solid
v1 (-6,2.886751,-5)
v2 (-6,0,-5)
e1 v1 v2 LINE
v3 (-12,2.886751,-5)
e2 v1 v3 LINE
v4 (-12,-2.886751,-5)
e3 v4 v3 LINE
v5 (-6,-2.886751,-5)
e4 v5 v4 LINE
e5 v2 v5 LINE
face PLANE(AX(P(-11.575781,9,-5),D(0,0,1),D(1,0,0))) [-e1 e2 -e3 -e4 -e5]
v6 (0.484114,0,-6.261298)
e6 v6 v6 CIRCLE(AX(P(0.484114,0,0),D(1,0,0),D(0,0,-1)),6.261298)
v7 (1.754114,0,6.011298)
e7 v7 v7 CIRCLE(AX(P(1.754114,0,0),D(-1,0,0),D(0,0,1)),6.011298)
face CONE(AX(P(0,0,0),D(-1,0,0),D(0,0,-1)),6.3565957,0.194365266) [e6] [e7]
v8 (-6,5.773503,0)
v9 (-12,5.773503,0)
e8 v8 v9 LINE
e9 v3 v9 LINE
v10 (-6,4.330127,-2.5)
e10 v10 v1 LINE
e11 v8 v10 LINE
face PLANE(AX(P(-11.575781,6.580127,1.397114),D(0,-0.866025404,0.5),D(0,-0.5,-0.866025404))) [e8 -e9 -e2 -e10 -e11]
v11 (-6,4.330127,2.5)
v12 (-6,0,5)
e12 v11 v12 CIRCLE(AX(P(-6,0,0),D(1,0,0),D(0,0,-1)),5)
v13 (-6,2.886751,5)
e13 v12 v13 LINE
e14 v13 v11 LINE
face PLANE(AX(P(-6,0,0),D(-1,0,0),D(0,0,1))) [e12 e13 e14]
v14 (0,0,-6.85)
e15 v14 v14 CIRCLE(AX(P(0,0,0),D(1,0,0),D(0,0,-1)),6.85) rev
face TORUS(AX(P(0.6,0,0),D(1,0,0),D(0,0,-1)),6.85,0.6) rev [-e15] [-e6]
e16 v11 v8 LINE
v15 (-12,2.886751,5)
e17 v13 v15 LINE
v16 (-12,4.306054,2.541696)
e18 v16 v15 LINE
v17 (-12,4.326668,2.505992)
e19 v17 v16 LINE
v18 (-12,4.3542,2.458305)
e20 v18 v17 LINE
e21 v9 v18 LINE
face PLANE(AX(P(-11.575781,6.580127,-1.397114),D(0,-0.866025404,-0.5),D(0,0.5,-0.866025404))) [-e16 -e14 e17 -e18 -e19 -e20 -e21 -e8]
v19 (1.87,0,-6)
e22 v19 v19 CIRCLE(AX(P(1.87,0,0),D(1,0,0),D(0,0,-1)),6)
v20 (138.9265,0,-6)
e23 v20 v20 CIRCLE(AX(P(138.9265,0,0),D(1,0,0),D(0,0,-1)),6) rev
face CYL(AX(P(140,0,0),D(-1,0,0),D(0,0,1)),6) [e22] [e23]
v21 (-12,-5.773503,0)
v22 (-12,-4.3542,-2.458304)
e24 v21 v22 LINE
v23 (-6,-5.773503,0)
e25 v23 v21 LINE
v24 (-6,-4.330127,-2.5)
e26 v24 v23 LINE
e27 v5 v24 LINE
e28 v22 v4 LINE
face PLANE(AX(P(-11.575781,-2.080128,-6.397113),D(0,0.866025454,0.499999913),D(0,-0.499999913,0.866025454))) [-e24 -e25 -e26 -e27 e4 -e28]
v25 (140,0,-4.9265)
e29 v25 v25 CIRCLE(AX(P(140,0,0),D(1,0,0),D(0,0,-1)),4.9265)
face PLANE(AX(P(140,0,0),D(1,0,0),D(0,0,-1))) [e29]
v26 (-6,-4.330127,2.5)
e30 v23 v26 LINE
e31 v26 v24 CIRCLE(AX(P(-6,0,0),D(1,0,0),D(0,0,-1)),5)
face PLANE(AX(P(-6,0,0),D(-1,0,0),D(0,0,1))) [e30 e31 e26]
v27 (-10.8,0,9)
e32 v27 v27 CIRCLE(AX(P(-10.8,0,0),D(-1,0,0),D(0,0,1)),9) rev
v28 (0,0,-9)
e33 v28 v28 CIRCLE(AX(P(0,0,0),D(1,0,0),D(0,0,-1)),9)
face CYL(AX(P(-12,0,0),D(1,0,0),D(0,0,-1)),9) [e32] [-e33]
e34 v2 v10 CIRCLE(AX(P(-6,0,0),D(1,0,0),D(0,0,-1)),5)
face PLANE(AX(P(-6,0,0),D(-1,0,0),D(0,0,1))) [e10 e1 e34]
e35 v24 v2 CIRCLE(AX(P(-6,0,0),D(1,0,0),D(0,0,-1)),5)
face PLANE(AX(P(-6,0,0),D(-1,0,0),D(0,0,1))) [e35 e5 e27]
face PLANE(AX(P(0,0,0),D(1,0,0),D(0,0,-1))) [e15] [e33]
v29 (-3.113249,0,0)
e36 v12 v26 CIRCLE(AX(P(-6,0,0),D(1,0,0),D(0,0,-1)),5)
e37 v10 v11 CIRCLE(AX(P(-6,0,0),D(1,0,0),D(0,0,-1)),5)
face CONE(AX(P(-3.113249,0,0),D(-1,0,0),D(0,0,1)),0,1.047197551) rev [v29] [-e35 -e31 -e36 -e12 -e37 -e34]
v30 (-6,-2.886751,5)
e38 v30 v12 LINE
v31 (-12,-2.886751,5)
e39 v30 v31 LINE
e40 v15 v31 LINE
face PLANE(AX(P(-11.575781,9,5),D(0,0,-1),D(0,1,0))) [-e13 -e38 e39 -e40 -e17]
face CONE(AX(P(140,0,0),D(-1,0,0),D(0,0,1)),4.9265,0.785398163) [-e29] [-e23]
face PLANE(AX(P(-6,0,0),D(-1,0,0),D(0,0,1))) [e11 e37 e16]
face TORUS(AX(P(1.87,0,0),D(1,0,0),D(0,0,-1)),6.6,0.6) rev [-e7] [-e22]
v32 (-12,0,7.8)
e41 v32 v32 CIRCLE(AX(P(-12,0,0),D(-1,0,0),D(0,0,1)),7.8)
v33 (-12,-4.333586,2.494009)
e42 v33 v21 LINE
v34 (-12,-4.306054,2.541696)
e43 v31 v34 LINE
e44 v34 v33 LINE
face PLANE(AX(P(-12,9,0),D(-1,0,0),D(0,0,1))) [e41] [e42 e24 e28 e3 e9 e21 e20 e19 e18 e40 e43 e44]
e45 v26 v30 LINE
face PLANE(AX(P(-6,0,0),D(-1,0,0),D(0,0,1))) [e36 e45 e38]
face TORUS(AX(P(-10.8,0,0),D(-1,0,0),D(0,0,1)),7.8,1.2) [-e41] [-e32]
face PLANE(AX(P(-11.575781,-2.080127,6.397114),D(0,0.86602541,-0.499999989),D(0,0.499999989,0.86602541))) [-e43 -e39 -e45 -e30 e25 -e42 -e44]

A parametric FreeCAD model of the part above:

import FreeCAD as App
import Part
import Sketcher

V = App.Vector
Q = App.Units.Quantity


def edges_at(feature, points):
    """Names of the edges that pass closest to the given points."""
    edges = feature.Shape.Edges
    near = lambda p: min(range(len(edges)), key=lambda i: edges[i].distToShape(Part.Vertex(*p))[0])
    return sorted({f"Edge{near(p) + 1}" for p in points})


def add_polygon(sketch, points):
    """Adds a closed chain of lines whose ends are joined by coincident constraints."""
    first, n = sketch.GeometryCount, len(points)
    for a, b in zip(points, points[1:] + points[:1]):
        sketch.addGeometry(Part.LineSegment(App.Vector(*a, 0), App.Vector(*b, 0)), False)
    for i in range(n):
        sketch.addConstraint(Sketcher.Constraint("Coincident", first + i, 2, first + (i + 1) % n, 1))

doc = App.newDocument("Part")
body = doc.addObject("PartDesign::Body", "Body")

# Sketch on XY plane
sketch1 = body.newObject("Sketcher::SketchObject", "Sketch")
sketch1.AttachmentSupport = (doc.getObject("XY_Plane"), [""])
sketch1.MapMode = "FlatFace"
add_polygon(sketch1, [(-12, 9), (-12, 0), (0, 0), (0, 9)])  # lines 0-3
sketch1.addConstraint([
    Sketcher.Constraint("Vertical", 0),
    Sketcher.Constraint("Horizontal", 1),
    Sketcher.Constraint("Vertical", 2),
    Sketcher.Constraint("Horizontal", 3),
    Sketcher.Constraint("Coincident", 1, 2, -1, 1),
    Sketcher.Constraint("DistanceX", 1, 1, 1, 2, Q("12 mm")),
    Sketcher.Constraint("DistanceY", 0, 2, 0, 1, Q("9 mm")),
])
revolution = body.newObject("PartDesign::Revolution", "Revolution")
revolution.Profile = sketch1
revolution.ReferenceAxis = (sketch1, ["H_Axis"])
revolution.Angle = 360

# Sketch on YZ plane
sketch2 = body.newObject("Sketcher::SketchObject", "Sketch001")
sketch2.AttachmentSupport = (doc.getObject("YZ_Plane"), [""])
sketch2.MapMode = "FlatFace"
sketch2.AttachmentOffset = App.Placement(V(0, 0, -12), App.Rotation())
add_polygon(sketch2, [(4.334, -2.494), (4.306, -2.542), (2.887, -5), (-2.887, -5), (-4.306, -2.542), (-4.327, -2.506), (-4.354, -2.458), (-5.774, 0), (-4.354, 2.458), (-4.334, 2.494), (-4.306, 2.542), (-2.887, 5), (2.887, 5), (4.306, 2.542), (4.327, 2.506), (4.354, 2.458), (5.774, 0), (4.354, -2.458)])  # lines 0-17
sketch2.addConstraint([
    Sketcher.Constraint("Horizontal", 2),
    Sketcher.Constraint("Horizontal", 11),
    Sketcher.Constraint("Symmetric", 0, 2, 9, 2, -1, 1),
    Sketcher.Constraint("Symmetric", 1, 2, 10, 2, -1, 1),
    Sketcher.Constraint("Symmetric", 3, 2, 12, 2, -1, 1),
    Sketcher.Constraint("Symmetric", 4, 2, 13, 2, -1, 1),
    Sketcher.Constraint("Symmetric", 5, 2, 14, 2, -1, 1),
    Sketcher.Constraint("Symmetric", 6, 2, 15, 2, -1, 1),
    Sketcher.Constraint("Symmetric", 7, 2, 16, 2, -1, 1),
    Sketcher.Constraint("Symmetric", 8, 2, 17, 2, -1, 1),
    Sketcher.Constraint("Symmetric", 0, 2, 3, 2, -2),
    Sketcher.Constraint("Symmetric", 7, 2, 14, 2, -2),
    Sketcher.Constraint("PointOnObject", 6, 2, -1),
    Sketcher.Constraint("Parallel", 0, 1),
    Sketcher.Constraint("Parallel", 3, 4),
    Sketcher.Constraint("Parallel", 4, 5),
    Sketcher.Constraint("Parallel", 5, 6),
    Sketcher.Constraint("Parallel", 1, 7),
    Sketcher.Constraint("Parallel", 6, 12),
    Sketcher.Constraint("Equal", 0, 5),
    Sketcher.Constraint("Equal", 3, 6),
    Sketcher.Constraint("Angle", 0, Q("-120.000001 deg")),
    Sketcher.Constraint("DistanceY", 1, 2, -1, 1, Q("5 mm")),
    Sketcher.Constraint("DistanceX", 5, 2, -1, 1, Q("4.3542 mm")),
    Sketcher.Constraint("DistanceX", 2, 2, 2, 1, Q("5.773503 mm")),
    Sketcher.Constraint("DistanceY", 4, 2, -1, 1, Q("2.505991 mm")),
])
pocket1 = body.newObject("PartDesign::Pocket", "Pocket")
pocket1.Profile = sketch2
pocket1.Length = 0.424219
pocket1.Reversed = True

# Sketch on YZ plane
sketch3 = body.newObject("Sketcher::SketchObject", "Sketch002")
sketch3.AttachmentSupport = (doc.getObject("YZ_Plane"), [""])
sketch3.MapMode = "FlatFace"
sketch3.AttachmentOffset = App.Placement(V(0, 0, -11.575781), App.Rotation())
add_polygon(sketch3, [(6, 0), (3, -5), (-3, -5), (-6, 0), (-3, 5), (3, 5)])  # lines 0-5
sketch3.addConstraint([
    Sketcher.Constraint("Horizontal", 1),
    Sketcher.Constraint("Horizontal", 4),
    Sketcher.Constraint("Symmetric", 0, 2, 3, 2, -1, 1),
    Sketcher.Constraint("Symmetric", 2, 2, 5, 2, -1, 1),
    Sketcher.Constraint("PointOnObject", 2, 2, -1),
    Sketcher.Constraint("Parallel", 2, 5),
    Sketcher.Constraint("Vertical", 1, 2, 3, 2),
    Sketcher.Constraint("Angle", 0, Q("-120 deg")),
    Sketcher.Constraint("DistanceY", 0, 2, -1, 1, Q("5 mm")),
    Sketcher.Constraint("DistanceX", 1, 2, 1, 1, Q("5.773503 mm")),
])
pocket2 = body.newObject("PartDesign::Pocket", "Pocket001")
pocket2.Profile = sketch3
pocket2.Length = 5.575781
pocket2.Reversed = True

# Sketch on YZ plane
sketch4 = body.newObject("Sketcher::SketchObject", "Sketch003")
sketch4.AttachmentSupport = (doc.getObject("YZ_Plane"), [""])
sketch4.MapMode = "FlatFace"
sketch4.addGeometry(Part.Circle(V(0, 0, 0), V(0, 0, 1), 6), False)
sketch4.addConstraint([
    Sketcher.Constraint("Coincident", 0, 3, -1, 1),
    Sketcher.Constraint("Diameter", 0, Q("12.713191 mm")),
])
pad1 = body.newObject("PartDesign::Pad", "Pad")
pad1.Profile = sketch4
pad1.Length = 1.811506
pad1.TaperAngle = -11.136309

# Sketch on YZ plane
sketch5 = body.newObject("Sketcher::SketchObject", "Sketch004")
sketch5.AttachmentSupport = (doc.getObject("YZ_Plane"), [""])
sketch5.MapMode = "FlatFace"
sketch5.AttachmentOffset = App.Placement(V(0, 0, 1.811506), App.Rotation())
sketch5.addGeometry(Part.Circle(V(0, 0, 0), V(0, 0, 1), 6), False)
sketch5.addConstraint([
    Sketcher.Constraint("Coincident", 0, 3, -1, 1),
    Sketcher.Constraint("Diameter", 0, Q("12 mm")),
])
pad2 = body.newObject("PartDesign::Pad", "Pad001")
pad2.Profile = sketch5
pad2.Length = 138.188494

# Sketch on XY plane
sketch6 = body.newObject("Sketcher::SketchObject", "Sketch005")
sketch6.AttachmentSupport = (doc.getObject("XY_Plane"), [""])
sketch6.MapMode = "FlatFace"
add_polygon(sketch6, [(-6, 5), (-6, 0), (-3.1, 0)])  # lines 0-2
sketch6.addConstraint([
    Sketcher.Constraint("Vertical", 0),
    Sketcher.Constraint("Horizontal", 1),
    Sketcher.Constraint("PointOnObject", 0, 2, -1),
    Sketcher.Constraint("DistanceY", 0, 2, 0, 1, Q("5 mm")),
    Sketcher.Constraint("Angle", 2, Q("120 deg")),
    Sketcher.Constraint("DistanceX", 0, 2, -1, 1, Q("6 mm")),
])
groove = body.newObject("PartDesign::Groove", "Groove")
groove.Profile = sketch6
groove.ReferenceAxis = (sketch6, ["H_Axis"])
groove.Angle = 360
doc.recompute()

chamfer = body.newObject("PartDesign::Chamfer", "Chamfer")
chamfer.Base = (groove, edges_at(groove, [(140, 0, 6)]))
chamfer.Size = 1.0735
doc.recompute()

fillet = body.newObject("PartDesign::Fillet", "Fillet")
fillet.Base = (chamfer, edges_at(chamfer, [(0, 0, 6.357), (1.812, 0, 6)]))
fillet.Radius = 0.6
doc.recompute()

fillet2 = body.newObject("PartDesign::Fillet", "Fillet001")
fillet2.Base = (fillet, edges_at(fillet, [(-12, 0, 9)]))
fillet2.Radius = 1.2

doc.recompute()
